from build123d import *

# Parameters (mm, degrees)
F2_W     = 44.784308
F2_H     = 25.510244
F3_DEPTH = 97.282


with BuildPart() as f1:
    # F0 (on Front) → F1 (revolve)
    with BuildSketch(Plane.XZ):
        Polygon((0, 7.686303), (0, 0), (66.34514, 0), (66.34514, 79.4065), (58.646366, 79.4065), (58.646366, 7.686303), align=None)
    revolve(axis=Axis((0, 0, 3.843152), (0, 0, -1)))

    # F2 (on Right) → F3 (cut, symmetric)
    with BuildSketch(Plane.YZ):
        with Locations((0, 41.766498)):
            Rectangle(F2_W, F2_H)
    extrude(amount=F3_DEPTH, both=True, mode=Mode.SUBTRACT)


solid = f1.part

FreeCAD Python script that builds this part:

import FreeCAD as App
import Part
import Sketcher
Q = App.Units.Quantity

doc = App.newDocument("Part")
body = doc.addObject("PartDesign::Body", "Body")

sketch1 = body.newObject("Sketcher::SketchObject", "Sketch")
sketch1.AttachmentSupport = (doc.getObject("XZ_Plane"), [""])
sketch1.MapMode = "FlatFace"
sketch1.addGeometry([
    Part.LineSegment(App.Vector(0, 7.686303, 0), App.Vector(0, 0, 0)),
    Part.LineSegment(App.Vector(0, 0, 0), App.Vector(66.34514, 0, 0)),
    Part.LineSegment(App.Vector(66.34514, 0, 0), App.Vector(66.34514, 79.4065, 0)),
    Part.LineSegment(App.Vector(66.34514, 79.4065, 0), App.Vector(58.646366, 79.4065, 0)),
    Part.LineSegment(App.Vector(58.646366, 79.4065, 0), App.Vector(58.646366, 7.686303, 0)),
    Part.LineSegment(App.Vector(58.646366, 7.686303, 0), App.Vector(0, 7.686303, 0)),
], False)
sketch1.addConstraint([
    Sketcher.Constraint("Coincident", 0, 2, 1, 1),
    Sketcher.Constraint("Coincident", 1, 2, 2, 1),
    Sketcher.Constraint("Coincident", 2, 2, 3, 1),
    Sketcher.Constraint("Coincident", 3, 2, 4, 1),
    Sketcher.Constraint("Coincident", 4, 2, 5, 1),
    Sketcher.Constraint("Coincident", 5, 2, 0, 1),
    Sketcher.Constraint("Vertical", 0),
    Sketcher.Constraint("Horizontal", 1),
    Sketcher.Constraint("Vertical", 2),
    Sketcher.Constraint("Horizontal", 3),
    Sketcher.Constraint("Vertical", 4),
    Sketcher.Constraint("Horizontal", 5),
    Sketcher.Constraint("Coincident", 0, 2, -1, 1),
    Sketcher.Constraint("DistanceY", 2, 1, 2, 2, Q("79.4065 mm")),
    Sketcher.Constraint("DistanceX", 1, 1, 1, 2, Q("66.34514 mm")),
    Sketcher.Constraint("DistanceX", 3, 2, 3, 1, Q("7.698774 mm")),
    Sketcher.Constraint("DistanceY", 0, 2, 0, 1, Q("7.686303 mm")),
])
revolution = body.newObject("PartDesign::Revolution", "Revolution")
revolution.Profile = sketch1
revolution.ReferenceAxis = (sketch1, ["V_Axis"])
revolution.Angle = 360

sketch2 = body.newObject("Sketcher::SketchObject", "Sketch001")
sketch2.AttachmentSupport = (doc.getObject("YZ_Plane"), [""])
sketch2.MapMode = "FlatFace"
sketch2.addGeometry([
    Part.LineSegment(App.Vector(-22.392154, 54.52162, 0), App.Vector(-22.392154, 29.011376, 0)),
    Part.LineSegment(App.Vector(-22.392154, 29.011376, 0), App.Vector(22.392154, 29.011376, 0)),
    Part.LineSegment(App.Vector(22.392154, 29.011376, 0), App.Vector(22.392154, 54.52162, 0)),
    Part.LineSegment(App.Vector(22.392154, 54.52162, 0), App.Vector(-22.392154, 54.52162, 0)),
], False)
sketch2.addConstraint([
    Sketcher.Constraint("Coincident", 0, 2, 1, 1),
    Sketcher.Constraint("Coincident", 1, 2, 2, 1),
    Sketcher.Constraint("Coincident", 2, 2, 3, 1),
    Sketcher.Constraint("Coincident", 3, 2, 0, 1),
    Sketcher.Constraint("Vertical", 0),
    Sketcher.Constraint("Horizontal", 1),
    Sketcher.Constraint("Vertical", 2),
    Sketcher.Constraint("Horizontal", 3),
    Sketcher.Constraint("DistanceX", 1, 1, 1, 2, Q("44.784308 mm")),
    Sketcher.Constraint("DistanceY", 0, 2, 0, 1, Q("25.510244 mm")),
    Sketcher.Constraint("DistanceY", -1, 1, 2, 2, Q("54.52162 mm")),
    Sketcher.Constraint("DistanceX", 0, 2, -1, 1, Q("22.392154 mm")),
])
pocket1 = body.newObject("PartDesign::Pocket", "Pocket")
pocket1.Profile = sketch2
pocket1.Length = Q("7.66 in")
pocket1.Midplane = True

doc.recompute()
